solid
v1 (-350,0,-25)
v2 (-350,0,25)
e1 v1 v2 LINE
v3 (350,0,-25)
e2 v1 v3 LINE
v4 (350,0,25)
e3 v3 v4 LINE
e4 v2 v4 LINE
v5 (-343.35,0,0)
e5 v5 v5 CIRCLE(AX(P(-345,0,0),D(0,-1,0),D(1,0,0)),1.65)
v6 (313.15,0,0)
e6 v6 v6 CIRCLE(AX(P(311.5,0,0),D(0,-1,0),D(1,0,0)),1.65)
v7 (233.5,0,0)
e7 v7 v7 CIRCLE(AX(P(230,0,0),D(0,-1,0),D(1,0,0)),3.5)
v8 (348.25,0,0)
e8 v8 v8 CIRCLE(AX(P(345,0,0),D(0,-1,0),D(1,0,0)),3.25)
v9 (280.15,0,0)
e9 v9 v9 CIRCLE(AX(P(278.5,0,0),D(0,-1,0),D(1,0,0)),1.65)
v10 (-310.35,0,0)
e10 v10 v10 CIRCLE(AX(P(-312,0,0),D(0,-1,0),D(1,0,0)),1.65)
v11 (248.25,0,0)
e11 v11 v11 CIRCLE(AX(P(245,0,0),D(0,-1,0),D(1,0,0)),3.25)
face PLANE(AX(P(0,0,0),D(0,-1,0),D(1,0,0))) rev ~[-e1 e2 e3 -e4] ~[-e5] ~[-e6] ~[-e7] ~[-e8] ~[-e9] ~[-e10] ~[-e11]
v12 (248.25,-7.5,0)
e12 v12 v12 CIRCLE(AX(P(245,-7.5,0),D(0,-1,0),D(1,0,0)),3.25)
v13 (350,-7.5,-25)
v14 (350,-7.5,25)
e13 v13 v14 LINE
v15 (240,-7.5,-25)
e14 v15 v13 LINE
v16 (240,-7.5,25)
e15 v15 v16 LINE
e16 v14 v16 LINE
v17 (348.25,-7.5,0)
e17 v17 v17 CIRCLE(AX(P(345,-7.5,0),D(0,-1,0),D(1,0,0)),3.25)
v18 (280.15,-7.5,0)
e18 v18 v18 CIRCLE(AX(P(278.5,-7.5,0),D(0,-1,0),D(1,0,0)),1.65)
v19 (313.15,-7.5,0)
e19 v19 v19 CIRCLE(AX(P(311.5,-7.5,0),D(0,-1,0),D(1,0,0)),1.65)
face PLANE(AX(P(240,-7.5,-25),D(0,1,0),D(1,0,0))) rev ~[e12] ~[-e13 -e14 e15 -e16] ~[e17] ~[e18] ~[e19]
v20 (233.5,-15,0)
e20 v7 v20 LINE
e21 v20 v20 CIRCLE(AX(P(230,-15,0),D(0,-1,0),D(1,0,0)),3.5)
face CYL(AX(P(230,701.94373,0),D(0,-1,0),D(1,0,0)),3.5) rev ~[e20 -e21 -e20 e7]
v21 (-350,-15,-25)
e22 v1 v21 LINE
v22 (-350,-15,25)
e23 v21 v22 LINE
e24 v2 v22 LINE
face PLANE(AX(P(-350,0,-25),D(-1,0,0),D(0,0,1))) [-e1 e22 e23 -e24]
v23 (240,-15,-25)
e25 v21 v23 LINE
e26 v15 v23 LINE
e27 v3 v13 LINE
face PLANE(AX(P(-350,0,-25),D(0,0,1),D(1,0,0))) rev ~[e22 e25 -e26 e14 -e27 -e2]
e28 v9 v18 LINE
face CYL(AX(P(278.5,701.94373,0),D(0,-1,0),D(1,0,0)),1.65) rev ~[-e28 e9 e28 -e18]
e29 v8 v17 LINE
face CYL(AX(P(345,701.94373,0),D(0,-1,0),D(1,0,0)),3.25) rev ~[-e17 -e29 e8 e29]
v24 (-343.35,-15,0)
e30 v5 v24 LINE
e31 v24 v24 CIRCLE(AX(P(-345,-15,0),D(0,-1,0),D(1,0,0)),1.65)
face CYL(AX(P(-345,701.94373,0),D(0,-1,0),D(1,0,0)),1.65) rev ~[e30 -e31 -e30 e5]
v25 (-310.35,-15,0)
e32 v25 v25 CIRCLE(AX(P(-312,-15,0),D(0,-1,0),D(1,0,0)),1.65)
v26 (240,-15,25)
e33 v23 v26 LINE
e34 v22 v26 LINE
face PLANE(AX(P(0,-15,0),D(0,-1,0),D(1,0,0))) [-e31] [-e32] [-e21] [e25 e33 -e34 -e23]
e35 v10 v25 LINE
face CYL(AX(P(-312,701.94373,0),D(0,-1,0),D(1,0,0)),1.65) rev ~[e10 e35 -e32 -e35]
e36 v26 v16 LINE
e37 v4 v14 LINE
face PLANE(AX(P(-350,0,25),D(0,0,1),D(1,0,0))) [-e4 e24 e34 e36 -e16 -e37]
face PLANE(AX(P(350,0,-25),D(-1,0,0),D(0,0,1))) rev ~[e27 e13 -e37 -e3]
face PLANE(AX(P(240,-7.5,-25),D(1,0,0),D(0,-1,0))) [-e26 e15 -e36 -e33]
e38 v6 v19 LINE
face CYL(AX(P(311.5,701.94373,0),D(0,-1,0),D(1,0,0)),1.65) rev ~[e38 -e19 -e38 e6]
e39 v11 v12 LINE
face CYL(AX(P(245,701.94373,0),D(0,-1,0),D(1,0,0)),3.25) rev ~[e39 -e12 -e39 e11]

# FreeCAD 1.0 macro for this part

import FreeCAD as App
import Part
import Sketcher
from FreeCAD import Vector


def add_polygon(sketch, points):
    """Adds a closed chain of lines whose ends are joined by coincident constraints."""
    first, n = sketch.GeometryCount, len(points)
    for a, b in zip(points, points[1:] + points[:1]):
        sketch.addGeometry(Part.LineSegment(App.Vector(*a, 0), App.Vector(*b, 0)), False)
    for i in range(n):
        sketch.addConstraint(Sketcher.Constraint("Coincident", first + i, 2, first + (i + 1) % n, 1))

doc = App.newDocument("Part")
params = doc.addObject("Spreadsheet::Sheet", "Params")
for row, (alias, value) in enumerate([
    ("sketch1_width", "700 mm"),
    ("sketch1_height", "50 mm"),
    ("pad1_length", "15 mm"),
    ("sketch2_width", "110 mm"),
    ("sketch2_height", "7.5 mm"),
    ("sketch3_diameter", "3.3 mm"),
    ("hole_diameter", "3.3 mm"),
    ("sketch4_diameter", "3.3 mm"),
    ("hole2_diameter", "3.3 mm"),
    ("sketch5_diameter", "7 mm"),
    ("hole3_diameter", "7 mm"),
    ("sketch6_diameter", "6.5 mm"),
    ("hole4_diameter", "6.5 mm"),
], start=1):
    params.set(f"A{row}", alias)
    params.set(f"B{row}", "=" + value)
    params.setAlias(f"B{row}", alias)

body = doc.addObject("PartDesign::Body", "Body")

sketch1 = doc.addObject("Sketcher::SketchObject", "Sketch")
body.addObject(sketch1)
sketch1.AttachmentSupport = (doc.XZ_Plane, [""])
sketch1.MapMode = "FlatFace"
add_polygon(sketch1, [(-350, 25), (-350, -25), (350, -25), (350, 25)])
sketch1.addConstraint([
    Sketcher.Constraint("Vertical", 0),
    Sketcher.Constraint("Horizontal", 1),
    Sketcher.Constraint("Vertical", 2),
    Sketcher.Constraint("Horizontal", 3),
    Sketcher.Constraint("Symmetric", 0, 2, 2, 2, -1, 1),
    Sketcher.Constraint("DistanceX", 1, 1, 1, 2, 700.0),
    Sketcher.Constraint("DistanceY", 0, 2, 0, 1, 50.0),
])
sketch1.setExpression("Constraints[9]", "Params.sketch1_width")
sketch1.setExpression("Constraints[10]", "Params.sketch1_height")
pad1 = doc.addObject("PartDesign::Pad", "Pad")
body.addObject(pad1)
pad1.Profile = sketch1
pad1.setExpression("Length", "Params.pad1_length")

sketch2 = doc.addObject("Sketcher::SketchObject", "Sketch001")
body.addObject(sketch2)
sketch2.AttachmentSupport = (doc.XY_Plane, [""])
sketch2.MapMode = "FlatFace"
sketch2.AttachmentOffset = App.Placement(Vector(0, 0, -25), App.Rotation())
add_polygon(sketch2, [(240, -15), (240, -7.5), (350, -7.5), (350, -15)])
sketch2.addConstraint([
    Sketcher.Constraint("Vertical", 0),
    Sketcher.Constraint("Horizontal", 1),
    Sketcher.Constraint("Vertical", 2),
    Sketcher.Constraint("Horizontal", 3),
    Sketcher.Constraint("DistanceX", 1, 1, 1, 2, 110.0),
    Sketcher.Constraint("DistanceY", 0, 1, 0, 2, 7.5),
    Sketcher.Constraint("DistanceX", -1, 1, 0, 2, 240.0),
    Sketcher.Constraint("DistanceY", 2, 2, -1, 1, 15.0),
])
sketch2.setExpression("Constraints[8]", "Params.sketch2_width")
sketch2.setExpression("Constraints[9]", "Params.sketch2_height")
pocket1 = doc.addObject("PartDesign::Pocket", "Pocket")
body.addObject(pocket1)
pocket1.Profile = sketch2
pocket1.Type = "ThroughAll"
pocket1.Reversed = True

sketch3 = doc.addObject("Sketcher::SketchObject", "Sketch002")
body.addObject(sketch3)
sketch3.AttachmentSupport = (doc.XZ_Plane, [""])
sketch3.MapMode = "FlatFace"
sketch3.addGeometry([
    Part.Circle(Vector(311.5, 0, 0), Vector(0, 0, 1), 1.65),
    Part.Circle(Vector(278.5, 0, 0), Vector(0, 0, 1), 1.65),
], False)
sketch3.addConstraint([
    Sketcher.Constraint("Equal", 0, 1),
    Sketcher.Constraint("PointOnObject", 0, 3, -1),
    Sketcher.Constraint("PointOnObject", 1, 3, -1),
    Sketcher.Constraint("Diameter", 0, 3.3),
    Sketcher.Constraint("DistanceX", 1, 3, 0, 3, 33.0),
    Sketcher.Constraint("DistanceX", -1, 1, 0, 3, 311.5),
])
sketch3.setExpression("Constraints[3]", "Params.sketch3_diameter")
doc.recompute()
hole = doc.addObject("PartDesign::Hole", "Hole")
body.addObject(hole)
hole.Profile = sketch3
hole.ThreadType = "None"
hole.setExpression("Diameter", "Params.hole_diameter")
hole.DepthType = "ThroughAll"
hole.Reversed = True

sketch4 = doc.addObject("Sketcher::SketchObject", "Sketch003")
body.addObject(sketch4)
sketch4.AttachmentSupport = (doc.XZ_Plane, [""])
sketch4.MapMode = "FlatFace"
sketch4.addGeometry([
    Part.Circle(Vector(-312, 0, 0), Vector(0, 0, 1), 1.65),
    Part.Circle(Vector(-345, 0, 0), Vector(0, 0, 1), 1.65),
], False)
sketch4.addConstraint([
    Sketcher.Constraint("Equal", 0, 1),
    Sketcher.Constraint("PointOnObject", 0, 3, -1),
    Sketcher.Constraint("PointOnObject", 1, 3, -1),
    Sketcher.Constraint("Diameter", 0, 3.3),
    Sketcher.Constraint("DistanceX", 0, 3, -1, 1, 312.0),
    Sketcher.Constraint("DistanceX", 1, 3, -1, 1, 345.0),
])
sketch4.setExpression("Constraints[3]", "Params.sketch4_diameter")
doc.recompute()
hole2 = doc.addObject("PartDesign::Hole", "Hole001")
body.addObject(hole2)
hole2.Profile = sketch4
hole2.ThreadType = "None"
hole2.setExpression("Diameter", "Params.hole2_diameter")
hole2.DepthType = "ThroughAll"
hole2.Reversed = True

sketch5 = doc.addObject("Sketcher::SketchObject", "Sketch004")
body.addObject(sketch5)
sketch5.AttachmentSupport = (doc.XZ_Plane, [""])
sketch5.MapMode = "FlatFace"
sketch5.addGeometry(Part.Circle(Vector(230, 0, 0), Vector(0, 0, 1), 3.5), False)
sketch5.addConstraint([
    Sketcher.Constraint("PointOnObject", 0, 3, -1),
    Sketcher.Constraint("Diameter", 0, 7.0),
    Sketcher.Constraint("DistanceX", -1, 1, 0, 3, 230.0),
])
sketch5.setExpression("Constraints[1]", "Params.sketch5_diameter")
doc.recompute()
hole3 = doc.addObject("PartDesign::Hole", "Hole002")
body.addObject(hole3)
hole3.Profile = sketch5
hole3.ThreadType = "None"
hole3.setExpression("Diameter", "Params.hole3_diameter")
hole3.DepthType = "ThroughAll"
hole3.Reversed = True

sketch6 = doc.addObject("Sketcher::SketchObject", "Sketch005")
body.addObject(sketch6)
sketch6.AttachmentSupport = (doc.XZ_Plane, [""])
sketch6.MapMode = "FlatFace"
sketch6.addGeometry([
    Part.Circle(Vector(345, 0, 0), Vector(0, 0, 1), 3.25),
    Part.Circle(Vector(245, 0, 0), Vector(0, 0, 1), 3.25),
], False)
sketch6.addConstraint([
    Sketcher.Constraint("Equal", 0, 1),
    Sketcher.Constraint("PointOnObject", 0, 3, -1),
    Sketcher.Constraint("PointOnObject", 1, 3, -1),
    Sketcher.Constraint("Diameter", 0, 6.5),
    Sketcher.Constraint("DistanceX", -1, 1, 0, 3, 345.0),
    Sketcher.Constraint("DistanceX", -1, 1, 1, 3, 245.0),
])
sketch6.setExpression("Constraints[3]", "Params.sketch6_diameter")
doc.recompute()
hole4 = doc.addObject("PartDesign::Hole", "Hole003")
body.addObject(hole4)
hole4.Profile = sketch6
hole4.ThreadType = "None"
hole4.setExpression("Diameter", "Params.hole4_diameter")
hole4.DepthType = "ThroughAll"
hole4.Reversed = True

doc.recompute()
